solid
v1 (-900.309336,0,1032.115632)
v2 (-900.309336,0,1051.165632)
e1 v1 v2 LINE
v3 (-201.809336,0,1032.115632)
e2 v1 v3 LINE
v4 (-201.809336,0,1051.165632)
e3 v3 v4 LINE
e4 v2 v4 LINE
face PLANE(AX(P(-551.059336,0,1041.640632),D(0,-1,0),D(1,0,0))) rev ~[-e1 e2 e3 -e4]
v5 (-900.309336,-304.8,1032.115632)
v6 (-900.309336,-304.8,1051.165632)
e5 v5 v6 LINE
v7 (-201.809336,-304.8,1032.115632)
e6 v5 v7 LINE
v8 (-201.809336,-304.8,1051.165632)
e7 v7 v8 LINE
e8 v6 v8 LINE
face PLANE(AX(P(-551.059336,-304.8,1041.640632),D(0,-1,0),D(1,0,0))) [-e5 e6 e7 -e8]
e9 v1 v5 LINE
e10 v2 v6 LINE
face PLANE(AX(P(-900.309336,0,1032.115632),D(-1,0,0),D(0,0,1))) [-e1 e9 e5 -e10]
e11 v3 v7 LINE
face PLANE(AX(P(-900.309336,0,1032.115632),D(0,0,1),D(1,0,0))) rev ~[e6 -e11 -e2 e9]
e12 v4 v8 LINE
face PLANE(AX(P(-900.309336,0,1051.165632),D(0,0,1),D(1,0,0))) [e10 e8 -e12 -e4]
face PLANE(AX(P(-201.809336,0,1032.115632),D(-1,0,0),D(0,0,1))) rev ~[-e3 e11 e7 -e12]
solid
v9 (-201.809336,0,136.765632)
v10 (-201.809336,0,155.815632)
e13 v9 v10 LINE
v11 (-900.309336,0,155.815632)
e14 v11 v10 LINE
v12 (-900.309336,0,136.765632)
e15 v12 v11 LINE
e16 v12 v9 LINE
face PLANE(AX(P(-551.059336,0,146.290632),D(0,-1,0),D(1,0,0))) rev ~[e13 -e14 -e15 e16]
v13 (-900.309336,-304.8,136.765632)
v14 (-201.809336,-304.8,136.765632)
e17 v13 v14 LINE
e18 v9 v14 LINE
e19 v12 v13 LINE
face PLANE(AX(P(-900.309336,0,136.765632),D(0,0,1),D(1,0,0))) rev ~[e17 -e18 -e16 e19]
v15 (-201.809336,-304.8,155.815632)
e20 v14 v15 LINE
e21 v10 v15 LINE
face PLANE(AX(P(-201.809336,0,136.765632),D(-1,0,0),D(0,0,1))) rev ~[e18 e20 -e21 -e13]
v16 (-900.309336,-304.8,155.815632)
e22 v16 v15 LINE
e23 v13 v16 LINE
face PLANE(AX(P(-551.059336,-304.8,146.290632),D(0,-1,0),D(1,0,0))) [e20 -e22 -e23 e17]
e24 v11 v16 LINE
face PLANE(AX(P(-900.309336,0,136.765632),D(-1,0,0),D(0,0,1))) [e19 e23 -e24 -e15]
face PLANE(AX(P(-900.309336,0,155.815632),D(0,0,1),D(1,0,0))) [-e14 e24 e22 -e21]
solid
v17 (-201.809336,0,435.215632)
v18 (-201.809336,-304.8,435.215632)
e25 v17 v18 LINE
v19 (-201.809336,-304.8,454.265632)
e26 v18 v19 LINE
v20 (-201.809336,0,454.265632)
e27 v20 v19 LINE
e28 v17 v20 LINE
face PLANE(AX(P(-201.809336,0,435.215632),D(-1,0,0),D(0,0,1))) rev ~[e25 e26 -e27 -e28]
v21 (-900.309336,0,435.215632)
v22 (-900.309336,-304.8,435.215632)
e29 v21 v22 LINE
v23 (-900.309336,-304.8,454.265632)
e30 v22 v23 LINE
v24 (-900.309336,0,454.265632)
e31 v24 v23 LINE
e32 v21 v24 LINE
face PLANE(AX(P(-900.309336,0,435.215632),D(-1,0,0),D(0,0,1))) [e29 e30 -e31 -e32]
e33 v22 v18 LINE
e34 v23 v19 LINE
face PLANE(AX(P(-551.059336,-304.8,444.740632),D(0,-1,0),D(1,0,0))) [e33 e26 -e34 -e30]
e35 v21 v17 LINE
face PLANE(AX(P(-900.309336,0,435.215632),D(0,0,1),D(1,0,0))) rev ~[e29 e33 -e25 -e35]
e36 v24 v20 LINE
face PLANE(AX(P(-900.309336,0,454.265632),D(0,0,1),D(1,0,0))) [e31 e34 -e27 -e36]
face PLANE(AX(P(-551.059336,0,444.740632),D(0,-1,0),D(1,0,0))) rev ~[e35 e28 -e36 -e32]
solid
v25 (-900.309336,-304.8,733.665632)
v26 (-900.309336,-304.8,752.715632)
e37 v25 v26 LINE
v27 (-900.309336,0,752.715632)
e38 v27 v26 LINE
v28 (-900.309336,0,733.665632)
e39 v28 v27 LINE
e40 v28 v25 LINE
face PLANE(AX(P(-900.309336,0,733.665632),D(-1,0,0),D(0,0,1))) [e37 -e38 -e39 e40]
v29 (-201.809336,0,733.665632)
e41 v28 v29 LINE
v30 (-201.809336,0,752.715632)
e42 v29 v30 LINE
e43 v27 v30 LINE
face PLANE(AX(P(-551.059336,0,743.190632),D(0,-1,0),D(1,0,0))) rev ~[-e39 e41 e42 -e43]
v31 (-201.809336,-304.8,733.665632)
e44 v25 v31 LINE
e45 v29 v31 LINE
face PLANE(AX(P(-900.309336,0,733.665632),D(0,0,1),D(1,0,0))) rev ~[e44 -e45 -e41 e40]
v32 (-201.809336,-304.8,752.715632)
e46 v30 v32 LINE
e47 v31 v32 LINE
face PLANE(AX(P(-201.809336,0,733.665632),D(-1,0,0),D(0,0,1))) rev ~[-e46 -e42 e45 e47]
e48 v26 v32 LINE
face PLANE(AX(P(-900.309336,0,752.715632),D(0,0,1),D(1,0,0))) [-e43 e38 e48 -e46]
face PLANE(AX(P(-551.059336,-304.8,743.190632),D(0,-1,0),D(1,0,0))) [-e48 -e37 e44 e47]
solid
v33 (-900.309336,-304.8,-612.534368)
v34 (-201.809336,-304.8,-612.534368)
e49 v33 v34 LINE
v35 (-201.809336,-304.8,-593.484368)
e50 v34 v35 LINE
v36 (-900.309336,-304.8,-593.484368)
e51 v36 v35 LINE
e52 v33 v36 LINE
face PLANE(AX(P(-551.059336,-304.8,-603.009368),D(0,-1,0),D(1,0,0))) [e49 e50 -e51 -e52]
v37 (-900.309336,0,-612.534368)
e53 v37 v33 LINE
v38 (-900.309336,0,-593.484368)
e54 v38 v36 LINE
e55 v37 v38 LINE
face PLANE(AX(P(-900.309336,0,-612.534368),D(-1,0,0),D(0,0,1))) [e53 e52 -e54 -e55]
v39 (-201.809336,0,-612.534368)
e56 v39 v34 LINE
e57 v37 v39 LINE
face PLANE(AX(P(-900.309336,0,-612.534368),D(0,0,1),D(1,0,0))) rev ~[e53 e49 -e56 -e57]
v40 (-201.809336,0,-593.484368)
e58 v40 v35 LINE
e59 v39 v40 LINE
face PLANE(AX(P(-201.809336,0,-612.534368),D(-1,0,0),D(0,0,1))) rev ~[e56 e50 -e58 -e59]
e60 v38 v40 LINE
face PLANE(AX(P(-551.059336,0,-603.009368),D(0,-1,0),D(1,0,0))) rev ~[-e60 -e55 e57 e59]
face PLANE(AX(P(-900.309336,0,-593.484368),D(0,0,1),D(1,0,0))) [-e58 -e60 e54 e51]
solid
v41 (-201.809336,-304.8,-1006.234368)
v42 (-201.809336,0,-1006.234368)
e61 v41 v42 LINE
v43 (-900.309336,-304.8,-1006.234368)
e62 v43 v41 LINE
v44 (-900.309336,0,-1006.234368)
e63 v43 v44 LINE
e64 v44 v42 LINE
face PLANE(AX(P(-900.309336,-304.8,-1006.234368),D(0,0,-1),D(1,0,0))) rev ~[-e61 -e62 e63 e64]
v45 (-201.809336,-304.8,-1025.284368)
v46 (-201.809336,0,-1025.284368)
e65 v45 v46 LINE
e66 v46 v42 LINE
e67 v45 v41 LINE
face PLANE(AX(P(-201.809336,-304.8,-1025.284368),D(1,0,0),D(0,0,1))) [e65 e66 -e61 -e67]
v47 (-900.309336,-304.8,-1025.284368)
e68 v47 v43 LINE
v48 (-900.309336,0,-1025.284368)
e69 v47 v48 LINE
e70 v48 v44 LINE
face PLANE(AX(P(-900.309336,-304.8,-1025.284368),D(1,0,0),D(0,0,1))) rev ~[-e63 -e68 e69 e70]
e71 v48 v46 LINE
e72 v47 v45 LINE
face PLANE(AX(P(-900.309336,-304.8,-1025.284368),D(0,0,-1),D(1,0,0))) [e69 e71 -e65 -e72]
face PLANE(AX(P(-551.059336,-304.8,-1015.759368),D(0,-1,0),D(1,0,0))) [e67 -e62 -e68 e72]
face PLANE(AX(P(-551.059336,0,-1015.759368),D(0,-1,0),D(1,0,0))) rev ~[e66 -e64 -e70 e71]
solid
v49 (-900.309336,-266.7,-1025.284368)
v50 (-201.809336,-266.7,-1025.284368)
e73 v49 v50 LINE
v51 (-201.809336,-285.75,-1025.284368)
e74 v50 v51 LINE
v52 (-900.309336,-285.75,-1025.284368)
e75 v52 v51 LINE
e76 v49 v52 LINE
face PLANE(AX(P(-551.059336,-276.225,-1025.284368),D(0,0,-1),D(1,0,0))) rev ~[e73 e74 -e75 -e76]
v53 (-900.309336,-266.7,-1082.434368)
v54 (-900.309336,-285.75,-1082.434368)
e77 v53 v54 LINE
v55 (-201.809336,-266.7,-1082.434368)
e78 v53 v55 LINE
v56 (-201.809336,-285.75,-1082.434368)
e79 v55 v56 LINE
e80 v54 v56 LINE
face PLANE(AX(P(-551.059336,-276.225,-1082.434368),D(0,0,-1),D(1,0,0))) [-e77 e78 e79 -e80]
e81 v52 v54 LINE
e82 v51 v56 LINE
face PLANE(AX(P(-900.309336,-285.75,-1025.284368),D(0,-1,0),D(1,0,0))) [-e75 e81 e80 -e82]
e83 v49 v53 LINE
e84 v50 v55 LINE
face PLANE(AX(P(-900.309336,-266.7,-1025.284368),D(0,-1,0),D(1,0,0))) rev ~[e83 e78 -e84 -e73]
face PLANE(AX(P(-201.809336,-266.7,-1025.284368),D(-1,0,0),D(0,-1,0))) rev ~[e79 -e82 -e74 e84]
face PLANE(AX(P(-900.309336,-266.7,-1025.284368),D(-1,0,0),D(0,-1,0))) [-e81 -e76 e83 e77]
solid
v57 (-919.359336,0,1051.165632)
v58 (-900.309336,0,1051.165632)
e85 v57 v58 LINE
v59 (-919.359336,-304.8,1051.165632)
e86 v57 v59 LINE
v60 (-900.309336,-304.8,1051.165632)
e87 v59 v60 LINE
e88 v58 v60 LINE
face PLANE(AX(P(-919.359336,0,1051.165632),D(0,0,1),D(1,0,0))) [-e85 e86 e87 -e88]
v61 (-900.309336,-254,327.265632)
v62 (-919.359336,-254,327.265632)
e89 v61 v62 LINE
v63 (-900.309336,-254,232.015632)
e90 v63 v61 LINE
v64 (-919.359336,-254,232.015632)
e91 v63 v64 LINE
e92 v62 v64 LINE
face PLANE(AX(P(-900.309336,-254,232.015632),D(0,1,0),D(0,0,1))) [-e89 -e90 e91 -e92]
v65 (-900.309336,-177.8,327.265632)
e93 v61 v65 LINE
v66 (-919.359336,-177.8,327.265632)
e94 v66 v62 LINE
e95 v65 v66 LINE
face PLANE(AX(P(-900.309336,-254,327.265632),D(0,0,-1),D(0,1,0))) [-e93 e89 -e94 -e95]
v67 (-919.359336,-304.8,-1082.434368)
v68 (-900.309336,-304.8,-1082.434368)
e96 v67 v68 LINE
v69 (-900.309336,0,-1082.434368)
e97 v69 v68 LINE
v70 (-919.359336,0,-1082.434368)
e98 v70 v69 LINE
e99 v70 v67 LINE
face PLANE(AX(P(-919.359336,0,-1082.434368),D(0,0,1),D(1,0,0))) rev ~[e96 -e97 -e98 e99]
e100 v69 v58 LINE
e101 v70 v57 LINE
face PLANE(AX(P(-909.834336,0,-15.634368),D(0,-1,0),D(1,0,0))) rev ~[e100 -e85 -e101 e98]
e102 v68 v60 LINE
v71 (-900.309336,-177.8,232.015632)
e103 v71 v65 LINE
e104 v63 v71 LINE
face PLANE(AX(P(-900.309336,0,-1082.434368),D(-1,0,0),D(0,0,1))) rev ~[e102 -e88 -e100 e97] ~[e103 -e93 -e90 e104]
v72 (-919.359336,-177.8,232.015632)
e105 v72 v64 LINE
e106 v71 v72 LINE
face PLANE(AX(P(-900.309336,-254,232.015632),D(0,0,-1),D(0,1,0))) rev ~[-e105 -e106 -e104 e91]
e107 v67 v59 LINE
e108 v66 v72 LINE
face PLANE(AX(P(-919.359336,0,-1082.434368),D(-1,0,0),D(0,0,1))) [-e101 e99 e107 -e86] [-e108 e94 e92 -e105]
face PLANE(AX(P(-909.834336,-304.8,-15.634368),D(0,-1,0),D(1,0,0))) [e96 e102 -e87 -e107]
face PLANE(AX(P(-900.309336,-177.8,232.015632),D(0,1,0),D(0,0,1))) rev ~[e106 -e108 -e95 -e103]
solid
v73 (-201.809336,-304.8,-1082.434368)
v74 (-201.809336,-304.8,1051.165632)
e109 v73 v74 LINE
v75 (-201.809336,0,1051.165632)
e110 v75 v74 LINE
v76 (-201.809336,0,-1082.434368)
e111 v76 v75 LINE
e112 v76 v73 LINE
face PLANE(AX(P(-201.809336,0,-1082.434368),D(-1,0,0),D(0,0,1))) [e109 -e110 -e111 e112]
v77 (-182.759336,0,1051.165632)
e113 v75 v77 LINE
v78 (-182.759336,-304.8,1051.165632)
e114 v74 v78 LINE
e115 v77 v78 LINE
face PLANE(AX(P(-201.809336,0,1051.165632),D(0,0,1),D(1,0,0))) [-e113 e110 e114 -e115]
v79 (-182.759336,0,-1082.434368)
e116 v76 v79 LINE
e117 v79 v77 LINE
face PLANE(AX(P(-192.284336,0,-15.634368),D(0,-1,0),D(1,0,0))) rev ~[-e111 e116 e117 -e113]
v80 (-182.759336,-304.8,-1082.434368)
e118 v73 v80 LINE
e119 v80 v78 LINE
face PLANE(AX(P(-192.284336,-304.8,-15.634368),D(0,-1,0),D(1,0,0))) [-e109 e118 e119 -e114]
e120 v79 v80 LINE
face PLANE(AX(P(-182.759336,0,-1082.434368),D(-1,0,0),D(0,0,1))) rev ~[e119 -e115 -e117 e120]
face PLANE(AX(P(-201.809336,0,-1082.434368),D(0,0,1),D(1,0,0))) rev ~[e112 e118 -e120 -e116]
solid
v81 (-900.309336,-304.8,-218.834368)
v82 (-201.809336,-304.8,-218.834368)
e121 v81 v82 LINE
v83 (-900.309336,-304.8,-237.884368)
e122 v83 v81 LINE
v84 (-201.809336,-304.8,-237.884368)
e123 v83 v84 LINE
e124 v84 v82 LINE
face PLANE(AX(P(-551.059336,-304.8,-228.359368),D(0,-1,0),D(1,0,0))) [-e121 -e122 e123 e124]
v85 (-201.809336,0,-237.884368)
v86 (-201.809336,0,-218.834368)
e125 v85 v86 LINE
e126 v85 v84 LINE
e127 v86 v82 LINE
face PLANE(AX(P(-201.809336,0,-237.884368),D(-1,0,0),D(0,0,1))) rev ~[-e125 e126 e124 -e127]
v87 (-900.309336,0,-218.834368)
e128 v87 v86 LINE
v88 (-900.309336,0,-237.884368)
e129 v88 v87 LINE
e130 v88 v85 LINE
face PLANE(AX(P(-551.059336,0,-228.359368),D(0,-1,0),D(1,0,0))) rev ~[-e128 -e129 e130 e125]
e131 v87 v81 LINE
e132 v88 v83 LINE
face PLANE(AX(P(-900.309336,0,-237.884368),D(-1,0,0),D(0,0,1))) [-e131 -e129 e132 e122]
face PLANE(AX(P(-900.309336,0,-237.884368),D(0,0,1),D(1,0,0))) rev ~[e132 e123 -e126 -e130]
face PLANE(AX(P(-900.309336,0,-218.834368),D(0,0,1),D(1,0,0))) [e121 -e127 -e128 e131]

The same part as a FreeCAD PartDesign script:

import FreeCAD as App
import Part
import Sketcher
Q = App.Units.Quantity


def add_polygon(sketch, points):
    """Adds a closed chain of lines whose ends are joined by coincident constraints."""
    first, n = sketch.GeometryCount, len(points)
    for a, b in zip(points, points[1:] + points[:1]):
        sketch.addGeometry(Part.LineSegment(App.Vector(*a, 0), App.Vector(*b, 0)), False)
    for i in range(n):
        sketch.addConstraint(Sketcher.Constraint("Coincident", first + i, 2, first + (i + 1) % n, 1))

doc = App.newDocument("Part")
params = doc.addObject("Spreadsheet::Sheet", "Params")
for row, (alias, value) in enumerate([
    ("sketch1_height", "84 in"),
    ("sketch1_width", "0.75 in"),
    ("pad1_length", "12 in"),
    ("sketch2_width", "3 in"),
    ("sketch2_height", "3.75 in"),
    ("pocket1_length", "1 in"),
    ("sketch3_width", "27.5 in"),
    ("sketch3_height", "0.75 in"),
    ("pad2_length", "12 in"),
    ("sketch4_width", "27.5 in"),
    ("sketch4_height", "0.75 in"),
    ("pad3_length", "12 in"),
    ("sketch5_width", "27.5 in"),
    ("sketch5_height", "0.75 in"),
    ("pad4_length", "2.25 in"),
], start=1):
    params.set(f"A{row}", alias)
    params.set(f"B{row}", "=" + value)
    params.setAlias(f"B{row}", alias)

body = doc.addObject("PartDesign::Body", "Body")
body.AllowCompound = True

# Sketch on XZ plane
sketch1 = body.newObject("Sketcher::SketchObject", "Sketch")
sketch1.AttachmentSupport = (doc.getObject("XZ_Plane"), [""])
sketch1.MapMode = "FlatFace"
add_polygon(sketch1, [(-919.359336, 1051.165632), (-919.359336, -1082.434368), (-900.309336, -1082.434368), (-900.309336, 1051.165632)])  # lines 0-3
add_polygon(sketch1, [(-201.809336, 1051.165632), (-201.809336, -1082.434368), (-182.759336, -1082.434368), (-182.759336, 1051.165632)])  # lines 4-7
sketch1.addConstraint([
    Sketcher.Constraint("Vertical", 0),
    Sketcher.Constraint("Horizontal", 1),
    Sketcher.Constraint("Vertical", 2),
    Sketcher.Constraint("Horizontal", 3),
    Sketcher.Constraint("Vertical", 4),
    Sketcher.Constraint("Horizontal", 5),
    Sketcher.Constraint("Vertical", 6),
    Sketcher.Constraint("Horizontal", 7),
    Sketcher.Constraint("Horizontal", 1, 2, 4, 2),
    Sketcher.Constraint("Horizontal", 3, 2, 6, 2),
    Sketcher.Constraint("Equal", 3, 5),
    Sketcher.Constraint("DistanceY", 0, 2, 0, 1, Q("84 in")),
    Sketcher.Constraint("DistanceX", 0, 2, 5, 2, Q("29 in")),
    Sketcher.Constraint("DistanceX", 1, 1, 1, 2, Q("0.75 in")),
    Sketcher.Constraint("DistanceY", 0, 2, -1, 1, 1082.434368),
    Sketcher.Constraint("DistanceX", 0, 2, -1, 1, 919.359336),
])
sketch1.setExpression("Constraints[19]", "Params.sketch1_height")
sketch1.setExpression("Constraints[21]", "Params.sketch1_width")
pad1 = body.newObject("PartDesign::Pad", "Pad")
pad1.Profile = sketch1
pad1.setExpression("Length", "Params.pad1_length")

# Sketch on YZ plane
sketch2 = body.newObject("Sketcher::SketchObject", "Sketch001")
sketch2.AttachmentSupport = (doc.getObject("YZ_Plane"), [""])
sketch2.MapMode = "FlatFace"
sketch2.AttachmentOffset = App.Placement(App.Vector(0, 0, -900.309336), App.Rotation())
add_polygon(sketch2, [(-254, 327.265632), (-254, 232.015632), (-177.8, 232.015632), (-177.8, 327.265632)])  # lines 0-3
sketch2.addConstraint([
    Sketcher.Constraint("Vertical", 0),
    Sketcher.Constraint("Horizontal", 1),
    Sketcher.Constraint("Vertical", 2),
    Sketcher.Constraint("Horizontal", 3),
    Sketcher.Constraint("DistanceX", 1, 1, 1, 2, Q("3 in")),
    Sketcher.Constraint("DistanceX", 0, 2, -1, 1, Q("10 in")),
    Sketcher.Constraint("DistanceY", 0, 2, 0, 1, Q("3.75 in")),
    Sketcher.Constraint("DistanceY", -1, 1, 2, 2, 327.265632),
])
sketch2.setExpression("Constraints[8]", "Params.sketch2_width")
sketch2.setExpression("Constraints[10]", "Params.sketch2_height")
pocket1 = body.newObject("PartDesign::Pocket", "Pocket")
pocket1.Profile = sketch2
pocket1.setExpression("Length", "Params.pocket1_length")
body2 = doc.addObject("PartDesign::Body", "Body001")
body2.AllowCompound = True

# Sketch on XZ plane
sketch3 = body2.newObject("Sketcher::SketchObject", "Sketch002")
sketch3.AttachmentSupport = (doc.getObject("XZ_Plane001"), [""])
sketch3.MapMode = "FlatFace"
add_polygon(sketch3, [(-900.309336, -593.484368), (-900.309336, -612.534368), (-201.809336, -612.534368), (-201.809336, -593.484368)])  # lines 0-3
add_polygon(sketch3, [(-900.309336, -218.834368), (-900.309336, -237.884368), (-201.809336, -237.884368), (-201.809336, -218.834368)])  # lines 4-7
add_polygon(sketch3, [(-900.309336, 155.815632), (-900.309336, 136.765632), (-201.809336, 136.765632), (-201.809336, 155.815632)])  # lines 8-11
add_polygon(sketch3, [(-900.309336, 454.265632), (-900.309336, 435.215632), (-201.809336, 435.215632), (-201.809336, 454.265632)])  # lines 12-15
add_polygon(sketch3, [(-900.309336, 752.715632), (-900.309336, 733.665632), (-201.809336, 733.665632), (-201.809336, 752.715632)])  # lines 16-19
add_polygon(sketch3, [(-900.309336, 1051.165632), (-900.309336, 1032.115632), (-201.809336, 1032.115632), (-201.809336, 1051.165632)])  # lines 20-23
sketch3.addConstraint([
    Sketcher.Constraint("Vertical", 0),
    Sketcher.Constraint("Horizontal", 1),
    Sketcher.Constraint("Vertical", 2),
    Sketcher.Constraint("Horizontal", 3),
    Sketcher.Constraint("Vertical", 4),
    Sketcher.Constraint("Horizontal", 5),
    Sketcher.Constraint("Vertical", 6),
    Sketcher.Constraint("Horizontal", 7),
    Sketcher.Constraint("Vertical", 8),
    Sketcher.Constraint("Horizontal", 9),
    Sketcher.Constraint("Vertical", 10),
    Sketcher.Constraint("Horizontal", 11),
    Sketcher.Constraint("Vertical", 12),
    Sketcher.Constraint("Horizontal", 13),
    Sketcher.Constraint("Vertical", 14),
    Sketcher.Constraint("Horizontal", 15),
    Sketcher.Constraint("Vertical", 16),
    Sketcher.Constraint("Horizontal", 17),
    Sketcher.Constraint("Vertical", 18),
    Sketcher.Constraint("Horizontal", 19),
    Sketcher.Constraint("Vertical", 20),
    Sketcher.Constraint("Horizontal", 21),
    Sketcher.Constraint("Vertical", 22),
    Sketcher.Constraint("Horizontal", 23),
    Sketcher.Constraint("Vertical", 3, 2, 4, 2),
    Sketcher.Constraint("Vertical", 2, 2, 5, 2),
    Sketcher.Constraint("Vertical", 7, 2, 8, 2),
    Sketcher.Constraint("Vertical", 6, 2, 9, 2),
    Sketcher.Constraint("Vertical", 11, 2, 12, 2),
    Sketcher.Constraint("Vertical", 10, 2, 13, 2),
    Sketcher.Constraint("Vertical", 15, 2, 16, 2),
    Sketcher.Constraint("Vertical", 14, 2, 17, 2),
    Sketcher.Constraint("Vertical", 19, 2, 20, 2),
    Sketcher.Constraint("Vertical", 18, 2, 21, 2),
    Sketcher.Constraint("Equal", 2, 4),
    Sketcher.Constraint("Equal", 6, 8),
    Sketcher.Constraint("Equal", 10, 12),
    Sketcher.Constraint("Equal", 14, 16),
    Sketcher.Constraint("Equal", 18, 20),
    Sketcher.Constraint("DistanceX", 1, 1, 1, 2, Q("27.5 in")),
    Sketcher.Constraint("DistanceY", 3, 2, 4, 2, Q("14 in")),
    Sketcher.Constraint("DistanceY", 7, 2, 8, 2, Q("14 in")),
    Sketcher.Constraint("DistanceY", 11, 2, 12, 2, Q("11 in")),
    Sketcher.Constraint("DistanceY", 15, 2, 16, 2, Q("11 in")),
    Sketcher.Constraint("DistanceY", 19, 2, 20, 2, Q("11 in")),
    Sketcher.Constraint("DistanceY", 0, 2, 0, 1, Q("0.75 in")),
    Sketcher.Constraint("DistanceY", 0, 2, -1, 1, 612.534368),
    Sketcher.Constraint("DistanceX", 0, 2, -1, 1, 900.309336),
])
sketch3.setExpression("Constraints[63]", "Params.sketch3_width")
sketch3.setExpression("Constraints[69]", "Params.sketch3_height")
pad2 = body2.newObject("PartDesign::Pad", "Pad001")
pad2.Profile = sketch3
pad2.setExpression("Length", "Params.pad2_length")
body3 = doc.addObject("PartDesign::Body", "Body002")

# Sketch on XZ plane
sketch4 = body3.newObject("Sketcher::SketchObject", "Sketch003")
sketch4.AttachmentSupport = (doc.getObject("XZ_Plane002"), [""])
sketch4.MapMode = "FlatFace"
sketch4.AttachmentOffset = App.Placement(App.Vector(0, 0, 12 * 25.4), App.Rotation())
add_polygon(sketch4, [(-900.309336, -1006.234368), (-900.309336, -1025.284368), (-201.809336, -1025.284368), (-201.809336, -1006.234368)])  # lines 0-3
sketch4.addConstraint([
    Sketcher.Constraint("Vertical", 0),
    Sketcher.Constraint("Horizontal", 1),
    Sketcher.Constraint("Vertical", 2),
    Sketcher.Constraint("Horizontal", 3),
    Sketcher.Constraint("DistanceX", 1, 1, 1, 2, Q("27.5 in")),
    Sketcher.Constraint("DistanceY", 0, 2, 0, 1, Q("0.75 in")),
    Sketcher.Constraint("DistanceY", 0, 2, -1, 1, 1025.284368),
    Sketcher.Constraint("DistanceX", 0, 2, -1, 1, 900.309336),
])
sketch4.setExpression("Constraints[8]", "Params.sketch4_width")
sketch4.setExpression("Constraints[9]", "Params.sketch4_height")
pad3 = body3.newObject("PartDesign::Pad", "Pad002")
pad3.Profile = sketch4
pad3.setExpression("Length", "Params.pad3_length")
pad3.Reversed = True
body4 = doc.addObject("PartDesign::Body", "Body003")

# Sketch on XY plane
sketch5 = body4.newObject("Sketcher::SketchObject", "Sketch004")
sketch5.AttachmentSupport = (doc.getObject("XY_Plane003"), [""])
sketch5.MapMode = "FlatFace"
sketch5.AttachmentOffset = App.Placement(App.Vector(0, 0, -1025.284368), App.Rotation())
add_polygon(sketch5, [(-900.309336, -285.75), (-900.309336, -266.7), (-201.809336, -266.7), (-201.809336, -285.75)])  # lines 0-3
sketch5.addConstraint([
    Sketcher.Constraint("Vertical", 0),
    Sketcher.Constraint("Horizontal", 1),
    Sketcher.Constraint("Vertical", 2),
    Sketcher.Constraint("Horizontal", 3),
    Sketcher.Constraint("DistanceX", 1, 1, 1, 2, Q("27.5 in")),
    Sketcher.Constraint("DistanceY", 0, 1, 0, 2, Q("0.75 in")),
    Sketcher.Constraint("DistanceY", 0, 2, -1, 1, Q("10.5 in")),
    Sketcher.Constraint("DistanceX", 0, 2, -1, 1, 900.309336),
])
sketch5.setExpression("Constraints[8]", "Params.sketch5_width")
sketch5.setExpression("Constraints[9]", "Params.sketch5_height")
pad4 = body4.newObject("PartDesign::Pad", "Pad003")
pad4.Profile = sketch5
pad4.setExpression("Length", "Params.pad4_length")
pad4.Reversed = True

doc.recompute()
